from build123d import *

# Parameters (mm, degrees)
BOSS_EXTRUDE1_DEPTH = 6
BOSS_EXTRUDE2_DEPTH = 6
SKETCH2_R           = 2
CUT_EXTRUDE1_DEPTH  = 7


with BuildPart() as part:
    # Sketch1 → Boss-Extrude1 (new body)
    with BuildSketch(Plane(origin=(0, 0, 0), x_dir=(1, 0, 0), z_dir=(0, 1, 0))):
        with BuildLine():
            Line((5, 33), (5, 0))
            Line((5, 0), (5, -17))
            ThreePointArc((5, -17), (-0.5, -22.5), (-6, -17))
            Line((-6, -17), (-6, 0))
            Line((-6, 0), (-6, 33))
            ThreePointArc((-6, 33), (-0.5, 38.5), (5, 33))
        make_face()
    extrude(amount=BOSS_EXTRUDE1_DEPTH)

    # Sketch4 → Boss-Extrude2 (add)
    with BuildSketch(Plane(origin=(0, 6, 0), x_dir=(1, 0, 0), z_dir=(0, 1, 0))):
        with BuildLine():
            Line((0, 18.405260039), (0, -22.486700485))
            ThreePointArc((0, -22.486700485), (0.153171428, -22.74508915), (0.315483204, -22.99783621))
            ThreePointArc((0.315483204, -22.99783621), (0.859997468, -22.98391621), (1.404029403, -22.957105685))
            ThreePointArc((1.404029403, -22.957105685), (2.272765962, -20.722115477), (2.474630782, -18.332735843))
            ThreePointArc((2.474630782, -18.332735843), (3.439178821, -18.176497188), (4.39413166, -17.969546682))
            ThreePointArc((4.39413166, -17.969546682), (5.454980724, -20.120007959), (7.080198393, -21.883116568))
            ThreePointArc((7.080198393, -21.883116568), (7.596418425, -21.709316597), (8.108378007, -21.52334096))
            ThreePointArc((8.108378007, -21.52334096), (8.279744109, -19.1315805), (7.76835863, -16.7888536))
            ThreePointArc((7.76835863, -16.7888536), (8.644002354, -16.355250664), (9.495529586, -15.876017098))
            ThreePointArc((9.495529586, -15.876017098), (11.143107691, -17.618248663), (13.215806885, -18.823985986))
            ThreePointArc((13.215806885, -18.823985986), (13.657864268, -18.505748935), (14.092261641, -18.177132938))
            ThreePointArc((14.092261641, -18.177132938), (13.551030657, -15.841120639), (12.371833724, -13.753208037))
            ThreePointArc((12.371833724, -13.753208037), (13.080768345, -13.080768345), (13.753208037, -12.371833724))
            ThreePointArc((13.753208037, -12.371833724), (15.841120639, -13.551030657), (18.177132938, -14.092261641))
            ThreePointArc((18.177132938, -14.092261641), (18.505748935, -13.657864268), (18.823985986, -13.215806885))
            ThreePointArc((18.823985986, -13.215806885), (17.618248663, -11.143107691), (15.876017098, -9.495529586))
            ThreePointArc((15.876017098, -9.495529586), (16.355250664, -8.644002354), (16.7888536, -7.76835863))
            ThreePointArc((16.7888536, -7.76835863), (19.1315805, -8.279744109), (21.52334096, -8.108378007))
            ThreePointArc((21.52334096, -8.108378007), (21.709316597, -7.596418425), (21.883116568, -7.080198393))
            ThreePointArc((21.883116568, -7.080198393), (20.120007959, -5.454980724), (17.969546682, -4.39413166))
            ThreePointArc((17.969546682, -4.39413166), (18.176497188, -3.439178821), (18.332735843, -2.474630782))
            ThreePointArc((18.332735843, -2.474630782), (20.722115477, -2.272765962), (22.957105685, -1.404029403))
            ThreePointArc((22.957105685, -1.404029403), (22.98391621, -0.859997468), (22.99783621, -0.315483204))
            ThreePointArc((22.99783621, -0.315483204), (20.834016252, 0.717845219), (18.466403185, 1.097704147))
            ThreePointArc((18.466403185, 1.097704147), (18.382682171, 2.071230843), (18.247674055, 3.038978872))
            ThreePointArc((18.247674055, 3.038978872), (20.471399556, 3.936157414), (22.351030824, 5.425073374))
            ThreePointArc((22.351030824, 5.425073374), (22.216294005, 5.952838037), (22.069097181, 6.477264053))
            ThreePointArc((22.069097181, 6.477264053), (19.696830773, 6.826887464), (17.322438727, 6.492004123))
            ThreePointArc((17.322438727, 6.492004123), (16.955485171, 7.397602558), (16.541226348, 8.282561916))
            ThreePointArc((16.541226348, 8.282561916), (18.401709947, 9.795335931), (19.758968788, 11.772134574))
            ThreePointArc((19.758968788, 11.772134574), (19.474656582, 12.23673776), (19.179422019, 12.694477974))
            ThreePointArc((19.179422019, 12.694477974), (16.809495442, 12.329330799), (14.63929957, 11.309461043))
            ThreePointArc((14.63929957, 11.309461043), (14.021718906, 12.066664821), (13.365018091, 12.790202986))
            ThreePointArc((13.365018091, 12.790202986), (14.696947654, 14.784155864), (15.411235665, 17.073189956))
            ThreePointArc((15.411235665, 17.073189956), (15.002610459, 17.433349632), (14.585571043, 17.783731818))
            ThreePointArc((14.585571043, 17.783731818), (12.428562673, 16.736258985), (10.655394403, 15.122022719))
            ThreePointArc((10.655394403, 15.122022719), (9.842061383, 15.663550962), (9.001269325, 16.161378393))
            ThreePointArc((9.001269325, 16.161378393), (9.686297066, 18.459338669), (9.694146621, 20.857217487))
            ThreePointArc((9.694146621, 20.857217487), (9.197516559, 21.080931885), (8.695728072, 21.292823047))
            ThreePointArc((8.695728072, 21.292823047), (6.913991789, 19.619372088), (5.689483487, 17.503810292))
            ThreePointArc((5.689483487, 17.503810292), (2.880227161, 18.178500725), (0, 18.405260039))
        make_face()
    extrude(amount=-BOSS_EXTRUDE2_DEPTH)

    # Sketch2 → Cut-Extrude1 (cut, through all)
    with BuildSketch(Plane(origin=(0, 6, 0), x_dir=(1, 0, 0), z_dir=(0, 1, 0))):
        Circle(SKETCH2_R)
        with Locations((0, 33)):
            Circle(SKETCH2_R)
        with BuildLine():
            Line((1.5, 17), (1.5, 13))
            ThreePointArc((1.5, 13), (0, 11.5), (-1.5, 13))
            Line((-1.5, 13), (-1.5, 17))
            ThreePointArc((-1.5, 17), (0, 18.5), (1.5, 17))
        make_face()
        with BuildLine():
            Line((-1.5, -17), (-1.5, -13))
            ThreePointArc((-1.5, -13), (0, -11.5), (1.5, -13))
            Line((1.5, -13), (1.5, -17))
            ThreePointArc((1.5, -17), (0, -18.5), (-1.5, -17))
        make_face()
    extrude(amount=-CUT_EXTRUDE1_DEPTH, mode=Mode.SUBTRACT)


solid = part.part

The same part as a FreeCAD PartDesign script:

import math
import FreeCAD as App
import Part
import Sketcher

doc = App.newDocument("Part")
body = doc.addObject("PartDesign::Body", "Body")

# Sketch on XZ plane
sketch1 = body.newObject("Sketcher::SketchObject", "Sketch")
sketch1.AttachmentSupport = (doc.getObject("XZ_Plane"), [""])
sketch1.MapMode = "FlatFace"
sketch1.addGeometry([
    Part.LineSegment(App.Vector(5, 17, 0), App.Vector(5, -33, 0)),
    Part.ArcOfCircle(Part.Circle(App.Vector(0, -33, 0), App.Vector(0, 0, 1), 6), math.radians(180), math.radians(360)),
    Part.LineSegment(App.Vector(-6, -33, 0), App.Vector(-6, 17, 0)),
    Part.ArcOfCircle(Part.Circle(App.Vector(0, 17, 0), App.Vector(0, 0, 1), 6), math.radians(0), math.radians(180)),
], False)
sketch1.addConstraint([
    Sketcher.Constraint("Tangent", 0, 2, 1, 2),
    Sketcher.Constraint("Tangent", 1, 1, 2, 1),
    Sketcher.Constraint("Tangent", 2, 2, 3, 2),
    Sketcher.Constraint("Tangent", 3, 1, 0, 1),
    Sketcher.Constraint("Vertical", 0),
    Sketcher.Constraint("Vertical", 2),
    Sketcher.Constraint("Radius", 1, 5.5),
    Sketcher.Constraint("DistanceY", 0, 2, 0, 1, 50.0),
    Sketcher.Constraint("DistanceY", 1, 3, -1, 1, 33.0),
    Sketcher.Constraint("DistanceX", -1, 1, 0, 2, 5.0),
])
pad1 = body.newObject("PartDesign::Pad", "Pad")
pad1.Profile = sketch1
pad1.Length = 6
pad1.Reversed = True

# Sketch on XZ plane
sketch2 = body.newObject("Sketcher::SketchObject", "Sketch001")
sketch2.AttachmentSupport = (doc.getObject("XZ_Plane"), [""])
sketch2.MapMode = "FlatFace"
sketch2.AttachmentOffset = App.Placement(App.Vector(0, 0, -6), App.Rotation())
sketch2.addGeometry([
    Part.LineSegment(App.Vector(0, -18.4, 0), App.Vector(0, 22.5, 0)),  # 0
    Part.ArcOfCircle(Part.Circle(App.Vector(7.3, 18.3, 0), App.Vector(0, 0, 1), 8.4), math.radians(146.27), math.radians(150.37)),  # 1
    Part.ArcOfCircle(Part.Circle(App.Vector(0, 0, 0), App.Vector(0, 0, 1), 23), math.radians(86.5), math.radians(89.21)),  # 2
    Part.ArcOfCircle(Part.Circle(App.Vector(-5.9, 18.8, 0), App.Vector(0, 0, 1), 8.4), math.radians(-3), math.radians(29)),  # 3
    Part.ArcOfCircle(Part.Circle(App.Vector(0, 0, 0), App.Vector(0, 0, 1), 18.5), math.radians(76.26), math.radians(82.31)),  # 4
    Part.ArcOfCircle(Part.Circle(App.Vector(12.4, 15.4, 0), App.Vector(0, 0, 1), 8.4), math.radians(129), math.radians(162)),  # 5
    Part.ArcOfCircle(Part.Circle(App.Vector(0, 0, 0), App.Vector(0, 0, 1), 23), math.radians(69.36), math.radians(72.07)),  # 6
    Part.ArcOfCircle(Part.Circle(App.Vector(-0.1, 19.7, 0), App.Vector(0, 0, 1), 8.4), math.radians(-21), math.radians(12)),  # 7
    Part.ArcOfCircle(Part.Circle(App.Vector(0, 0, 0), App.Vector(0, 0, 1), 18.5), math.radians(59.12), math.radians(65.17)),  # 8
    Part.ArcOfCircle(Part.Circle(App.Vector(16.4, 11, 0), App.Vector(0, 0, 1), 8.4), math.radians(112), math.radians(145)),  # 9
    Part.ArcOfCircle(Part.Circle(App.Vector(0, 0, 0), App.Vector(0, 0, 1), 23), math.radians(52.21), math.radians(54.93)),  # 10
    Part.ArcOfCircle(Part.Circle(App.Vector(5.7, 18.9, 0), App.Vector(0, 0, 1), 8.4), math.radians(-38), math.radians(-5)),  # 11
    Part.ArcOfCircle(Part.Circle(App.Vector(0, 0, 0), App.Vector(0, 0, 1), 18.5), math.radians(41.97), math.radians(48.03)),  # 12
    Part.ArcOfCircle(Part.Circle(App.Vector(18.9, 5.7, 0), App.Vector(0, 0, 1), 8.4), math.radians(95), math.radians(128)),  # 13
    Part.ArcOfCircle(Part.Circle(App.Vector(0, 0, 0), App.Vector(0, 0, 1), 23), math.radians(35.07), math.radians(37.79)),  # 14
    Part.ArcOfCircle(Part.Circle(App.Vector(11, 16.4, 0), App.Vector(0, 0, 1), 8.4), math.radians(-55), math.radians(-22)),  # 15
    Part.ArcOfCircle(Part.Circle(App.Vector(0, 0, 0), App.Vector(0, 0, 1), 18.5), math.radians(24.83), math.radians(30.88)),  # 16
    Part.ArcOfCircle(Part.Circle(App.Vector(19.7, -0.1, 0), App.Vector(0, 0, 1), 8.4), math.radians(78), math.radians(111)),  # 17
    Part.ArcOfCircle(Part.Circle(App.Vector(0, 0, 0), App.Vector(0, 0, 1), 23), math.radians(17.93), math.radians(20.64)),  # 18
    Part.ArcOfCircle(Part.Circle(App.Vector(15.4, 12.4, 0), App.Vector(0, 0, 1), 8.4), math.radians(-72), math.radians(-39)),  # 19
    Part.ArcOfCircle(Part.Circle(App.Vector(0, 0, 0), App.Vector(0, 0, 1), 18.5), math.radians(7.69), math.radians(13.74)),  # 20
    Part.ArcOfCircle(Part.Circle(App.Vector(18.8, -5.9, 0), App.Vector(0, 0, 1), 8.4), math.radians(61), math.radians(93)),  # 21
    Part.ArcOfCircle(Part.Circle(App.Vector(0, 0, 0), App.Vector(0, 0, 1), 23), math.radians(0.79), math.radians(3.5)),  # 22
    Part.ArcOfCircle(Part.Circle(App.Vector(18.3, 7.3, 0), App.Vector(0, 0, 1), 8.4), math.radians(-89), math.radians(-56)),  # 23
    Part.ArcOfCircle(Part.Circle(App.Vector(0, 0, 0), App.Vector(0, 0, 1), 18.5), math.radians(-9.46), math.radians(-3.4)),  # 24
    Part.ArcOfCircle(Part.Circle(App.Vector(16.2, -11.2, 0), App.Vector(0, 0, 1), 8.4), math.radians(43), math.radians(76)),  # 25
    Part.ArcOfCircle(Part.Circle(App.Vector(0, 0, 0), App.Vector(0, 0, 1), 23), math.radians(-16.36), math.radians(-13.64)),  # 26
    Part.ArcOfCircle(Part.Circle(App.Vector(19.7, 1.6, 0), App.Vector(0, 0, 1), 8.4), math.radians(-106), math.radians(-73)),  # 27
    Part.ArcOfCircle(Part.Circle(App.Vector(0, 0, 0), App.Vector(0, 0, 1), 18.5), math.radians(-26.6), math.radians(-20.54)),  # 28
    Part.ArcOfCircle(Part.Circle(App.Vector(12.2, -15.5, 0), App.Vector(0, 0, 1), 8.4), math.radians(26), math.radians(59)),  # 29
    Part.ArcOfCircle(Part.Circle(App.Vector(0, 0, 0), App.Vector(0, 0, 1), 23), math.radians(-33.5), math.radians(-30.79)),  # 30
    Part.ArcOfCircle(Part.Circle(App.Vector(19.3, -4.3, 0), App.Vector(0, 0, 1), 8.4), math.radians(-123), math.radians(-91)),  # 31
    Part.ArcOfCircle(Part.Circle(App.Vector(0, 0, 0), App.Vector(0, 0, 1), 18.5), math.radians(-43.74), math.radians(-37.69)),  # 32
    Part.ArcOfCircle(Part.Circle(App.Vector(7.1, -18.4, 0), App.Vector(0, 0, 1), 8.4), math.radians(9), math.radians(42)),  # 33
    Part.ArcOfCircle(Part.Circle(App.Vector(0, 0, 0), App.Vector(0, 0, 1), 23), math.radians(-50.64), math.radians(-47.93)),  # 34
    Part.ArcOfCircle(Part.Circle(App.Vector(17.1, -9.8, 0), App.Vector(0, 0, 1), 8.4), math.radians(-141), math.radians(-108)),  # 35
    Part.ArcOfCircle(Part.Circle(App.Vector(0, 0, 0), App.Vector(0, 0, 1), 18.5), math.radians(-60.88), math.radians(-54.83)),  # 36
    Part.ArcOfCircle(Part.Circle(App.Vector(1.4, -19.7, 0), App.Vector(0, 0, 1), 8.4), math.radians(-8), math.radians(25)),  # 37
    Part.ArcOfCircle(Part.Circle(App.Vector(0, 0, 0), App.Vector(0, 0, 1), 23), math.radians(-67.79), math.radians(-65.07)),  # 38
    Part.ArcOfCircle(Part.Circle(App.Vector(13.5, -14.4, 0), App.Vector(0, 0, 1), 8.4), math.radians(-158), math.radians(-125)),  # 39
    Part.ArcOfCircle(Part.Circle(App.Vector(0, 0, 0), App.Vector(0, 0, 1), 18.4), math.radians(-90), math.radians(-71.99)),  # 40
], False)
sketch2.addConstraint([
    Sketcher.Constraint("Coincident", 0, 2, 1, 2),
    Sketcher.Constraint("Coincident", 1, 1, 2, 2),
    Sketcher.Constraint("Coincident", 2, 1, 3, 2),
    Sketcher.Constraint("Coincident", 3, 1, 4, 2),
    Sketcher.Constraint("Coincident", 4, 1, 5, 2),
    Sketcher.Constraint("Coincident", 5, 1, 6, 2),
    Sketcher.Constraint("Coincident", 6, 1, 7, 2),
    Sketcher.Constraint("Coincident", 7, 1, 8, 2),
    Sketcher.Constraint("Coincident", 8, 1, 9, 2),
    Sketcher.Constraint("Coincident", 9, 1, 10, 2),
    Sketcher.Constraint("Coincident", 10, 1, 11, 2),
    Sketcher.Constraint("Coincident", 11, 1, 12, 2),
    Sketcher.Constraint("Coincident", 12, 1, 13, 2),
    Sketcher.Constraint("Coincident", 13, 1, 14, 2),
    Sketcher.Constraint("Coincident", 14, 1, 15, 2),
    Sketcher.Constraint("Coincident", 15, 1, 16, 2),
    Sketcher.Constraint("Coincident", 16, 1, 17, 2),
    Sketcher.Constraint("Coincident", 17, 1, 18, 2),
    Sketcher.Constraint("Coincident", 18, 1, 19, 2),
    Sketcher.Constraint("Coincident", 19, 1, 20, 2),
    Sketcher.Constraint("Coincident", 20, 1, 21, 2),
    Sketcher.Constraint("Coincident", 21, 1, 22, 2),
    Sketcher.Constraint("Coincident", 22, 1, 23, 2),
    Sketcher.Constraint("Coincident", 23, 1, 24, 2),
    Sketcher.Constraint("Coincident", 24, 1, 25, 2),
    Sketcher.Constraint("Coincident", 25, 1, 26, 2),
    Sketcher.Constraint("Coincident", 26, 1, 27, 2),
    Sketcher.Constraint("Coincident", 27, 1, 28, 2),
    Sketcher.Constraint("Coincident", 28, 1, 29, 2),
    Sketcher.Constraint("Coincident", 29, 1, 30, 2),
    Sketcher.Constraint("Coincident", 30, 1, 31, 2),
    Sketcher.Constraint("Coincident", 31, 1, 32, 2),
    Sketcher.Constraint("Coincident", 32, 1, 33, 2),
    Sketcher.Constraint("Coincident", 33, 1, 34, 2),
    Sketcher.Constraint("Coincident", 34, 1, 35, 2),
    Sketcher.Constraint("Coincident", 35, 1, 36, 2),
    Sketcher.Constraint("Coincident", 36, 1, 37, 2),
    Sketcher.Constraint("Coincident", 37, 1, 38, 2),
    Sketcher.Constraint("Coincident", 38, 1, 39, 2),
    Sketcher.Constraint("Coincident", 39, 1, 40, 2),
    Sketcher.Constraint("Coincident", 40, 1, 0, 1),
    Sketcher.Constraint("Vertical", 0),
    Sketcher.Constraint("Coincident", 2, 3, -1, 1),
    Sketcher.Constraint("Coincident", 4, 3, -1, 1),
    Sketcher.Constraint("Coincident", 6, 3, -1, 1),
    Sketcher.Constraint("Coincident", 8, 3, -1, 1),
    Sketcher.Constraint("Coincident", 10, 3, -1, 1),
    Sketcher.Constraint("Coincident", 12, 3, -1, 1),
    Sketcher.Constraint("Coincident", 14, 3, -1, 1),
    Sketcher.Constraint("Coincident", 16, 3, -1, 1),
    Sketcher.Constraint("Coincident", 18, 3, -1, 1),
    Sketcher.Constraint("Coincident", 20, 3, -1, 1),
    Sketcher.Constraint("Coincident", 22, 3, -1, 1),
    Sketcher.Constraint("Coincident", 24, 3, -1, 1),
    Sketcher.Constraint("Coincident", 26, 3, -1, 1),
    Sketcher.Constraint("Coincident", 28, 3, -1, 1),
    Sketcher.Constraint("Coincident", 30, 3, -1, 1),
    Sketcher.Constraint("Coincident", 32, 3, -1, 1),
    Sketcher.Constraint("Coincident", 34, 3, -1, 1),
    Sketcher.Constraint("Coincident", 36, 3, -1, 1),
    Sketcher.Constraint("Coincident", 38, 3, -1, 1),
    Sketcher.Constraint("Coincident", 40, 3, -1, 1),
    Sketcher.Constraint("Equal", 1, 3),
    Sketcher.Constraint("Equal", 3, 5),
    Sketcher.Constraint("Equal", 2, 6),
    Sketcher.Constraint("Equal", 5, 7),
    Sketcher.Constraint("Equal", 4, 8),
    Sketcher.Constraint("Equal", 7, 9),
    Sketcher.Constraint("Equal", 6, 10),
    Sketcher.Constraint("Equal", 9, 11),
    Sketcher.Constraint("Equal", 8, 12),
    Sketcher.Constraint("Equal", 11, 13),
    Sketcher.Constraint("Equal", 10, 14),
    Sketcher.Constraint("Equal", 13, 15),
    Sketcher.Constraint("Equal", 12, 16),
    Sketcher.Constraint("Equal", 15, 17),
    Sketcher.Constraint("Equal", 14, 18),
    Sketcher.Constraint("Equal", 17, 19),
    Sketcher.Constraint("Equal", 16, 20),
    Sketcher.Constraint("Equal", 19, 21),
    Sketcher.Constraint("Equal", 18, 22),
    Sketcher.Constraint("Equal", 21, 23),
    Sketcher.Constraint("Equal", 20, 24),
    Sketcher.Constraint("Equal", 23, 25),
    Sketcher.Constraint("Equal", 22, 26),
    Sketcher.Constraint("Equal", 25, 27),
    Sketcher.Constraint("Equal", 24, 28),
    Sketcher.Constraint("Equal", 27, 29),
    Sketcher.Constraint("Equal", 26, 30),
    Sketcher.Constraint("Equal", 29, 31),
    Sketcher.Constraint("Equal", 28, 32),
    Sketcher.Constraint("Equal", 31, 33),
    Sketcher.Constraint("Equal", 30, 34),
    Sketcher.Constraint("Equal", 33, 35),
    Sketcher.Constraint("Equal", 32, 36),
    Sketcher.Constraint("Equal", 35, 37),
    Sketcher.Constraint("Equal", 34, 38),
    Sketcher.Constraint("Equal", 37, 39),
    Sketcher.Constraint("PointOnObject", 0, 2, -2),
    Sketcher.Constraint("Horizontal", 33, 3, 40, 1),
    Sketcher.Constraint("Radius", 2, 23.0),
    Sketcher.Constraint("Radius", 1, 8.4),
    Sketcher.Constraint("Radius", 4, 18.499),
    Sketcher.Constraint("Radius", 40, 18.40526),
    Sketcher.Constraint("DistanceY", 0, 1, 0, 2, 40.891961),
    Sketcher.Constraint("DistanceY", -1, 1, 7, 3, 19.733298),
    Sketcher.Constraint("DistanceX", -1, 1, 11, 3, 5.722199),
    Sketcher.Constraint("DistanceY", -1, 1, 13, 3, 5.722199),
    Sketcher.Constraint("DistanceX", -1, 1, 17, 3, 19.733298),
    Sketcher.Constraint("DistanceX", -1, 1, 31, 3, 19.260501),
    Sketcher.Constraint("DistanceX", -1, 1, 5, 1, 7.080198),
    Sketcher.Constraint("DistanceY", -1, 1, 18, 1, 7.080198),
    Sketcher.Constraint("DistanceX", -1, 1, 31, 1, 14.6393),
    Sketcher.Constraint("DistanceX", -1, 1, 1, 3, 7.301239),
    Sketcher.Constraint("DistanceX", -1, 1, 5, 3, 12.380659),
    Sketcher.Constraint("DistanceY", -1, 1, 11, 3, 18.885689),
    Sketcher.Constraint("DistanceX", -1, 1, 13, 3, 18.885689),
    Sketcher.Constraint("DistanceX", -1, 1, 19, 3, 15.36659),
    Sketcher.Constraint("DistanceX", -1, 1, 23, 3, 18.333159),
    Sketcher.Constraint("DistanceY", -1, 1, 23, 3, 7.301239),
    Sketcher.Constraint("DistanceX", -1, 1, 25, 3, 16.24883),
    Sketcher.Constraint("DistanceX", -1, 1, 29, 3, 12.226362),
    Sketcher.Constraint("DistanceX", -1, 1, 37, 3, 1.37627),
    Sketcher.Constraint("DistanceX", -1, 1, 2, 1, 1.404029),
    Sketcher.Constraint("DistanceX", -1, 1, 3, 1, 2.474631),
    Sketcher.Constraint("DistanceX", -1, 1, 6, 1, 8.108378),
    Sketcher.Constraint("DistanceX", -1, 1, 8, 1, 9.49553),
    Sketcher.Constraint("DistanceY", -1, 1, 15, 1, 9.49553),
    Sketcher.Constraint("DistanceY", -1, 1, 16, 1, 7.768359),
    Sketcher.Constraint("DistanceY", -1, 1, 20, 1, 2.474631),
    Sketcher.Constraint("DistanceY", -1, 1, 21, 1, 1.404029),
    Sketcher.Constraint("DistanceY", 24, 1, -1, 1, 3.038979),
    Sketcher.Constraint("DistanceX", -1, 1, 27, 1, 17.322439),
    Sketcher.Constraint("DistanceY", 28, 1, -1, 1, 8.282562),
    Sketcher.Constraint("DistanceX", -1, 1, 32, 1, 13.365018),
    Sketcher.Constraint("DistanceX", -1, 1, 34, 1, 14.585571),
    Sketcher.Constraint("DistanceX", -1, 1, 36, 1, 9.001269),
    Sketcher.Constraint("DistanceX", -1, 1, 38, 1, 8.695728),
    Sketcher.Constraint("DistanceY", 39, 1, -1, 1, 17.50381),
    Sketcher.Constraint("DistanceX", -1, 1, 9, 3, 16.360003),
    Sketcher.Constraint("DistanceX", -1, 1, 15, 3, 11.034632),
    Sketcher.Constraint("DistanceX", -1, 1, 27, 3, 19.670746),
    Sketcher.Constraint("DistanceX", -1, 1, 35, 3, 17.138876),
])
pad2 = body.newObject("PartDesign::Pad", "Pad001")
pad2.Profile = sketch2
pad2.Length = 6

# Sketch on XZ plane
sketch3 = body.newObject("Sketcher::SketchObject", "Sketch002")
sketch3.AttachmentSupport = (doc.getObject("XZ_Plane"), [""])
sketch3.MapMode = "FlatFace"
sketch3.AttachmentOffset = App.Placement(App.Vector(0, 0, -6), App.Rotation())
sketch3.addGeometry([
    Part.Circle(App.Vector(0, 0, 0), App.Vector(0, 0, 1), 2),  # 0
    Part.Circle(App.Vector(0, -33, 0), App.Vector(0, 0, 1), 2),  # 1
    Part.LineSegment(App.Vector(1.5, -13, 0), App.Vector(1.5, -17, 0)),  # 2
    Part.ArcOfCircle(Part.Circle(App.Vector(0, -17, 0), App.Vector(0, 0, 1), 1.5), math.radians(180), math.radians(360)),  # 3
    Part.LineSegment(App.Vector(-1.5, -17, 0), App.Vector(-1.5, -13, 0)),  # 4
    Part.ArcOfCircle(Part.Circle(App.Vector(0, -13, 0), App.Vector(0, 0, 1), 1.5), math.radians(0), math.radians(180)),  # 5
    Part.LineSegment(App.Vector(-1.5, 13, 0), App.Vector(-1.5, 17, 0)),  # 6
    Part.ArcOfCircle(Part.Circle(App.Vector(0, 17, 0), App.Vector(0, 0, 1), 1.5), math.radians(0), math.radians(180)),  # 7
    Part.LineSegment(App.Vector(1.5, 17, 0), App.Vector(1.5, 13, 0)),  # 8
    Part.ArcOfCircle(Part.Circle(App.Vector(0, 13, 0), App.Vector(0, 0, 1), 1.5), math.radians(180), math.radians(360)),  # 9
], False)
sketch3.addConstraint([
    Sketcher.Constraint("Tangent", 2, 2, 3, 2),
    Sketcher.Constraint("Tangent", 3, 1, 4, 1),
    Sketcher.Constraint("Tangent", 4, 2, 5, 2),
    Sketcher.Constraint("Tangent", 5, 1, 2, 1),
    Sketcher.Constraint("Tangent", 6, 2, 7, 2),
    Sketcher.Constraint("Tangent", 7, 1, 8, 1),
    Sketcher.Constraint("Tangent", 8, 2, 9, 2),
    Sketcher.Constraint("Tangent", 9, 1, 6, 1),
    Sketcher.Constraint("Vertical", 2),
    Sketcher.Constraint("Vertical", 4),
    Sketcher.Constraint("Vertical", 6),
    Sketcher.Constraint("Vertical", 8),
    Sketcher.Constraint("Coincident", 0, 3, -1, 1),
    Sketcher.Constraint("Equal", 0, 1),
    Sketcher.Constraint("Equal", 5, 7),
    Sketcher.Constraint("Symmetric", 3, 3, 7, 3, -1, 1),
    Sketcher.Constraint("Symmetric", 5, 3, 9, 3, -1),
    Sketcher.Constraint("PointOnObject", 1, 3, -2),
    Sketcher.Constraint("Diameter", 0, 4.0),
    Sketcher.Constraint("Radius", 3, 1.5),
    Sketcher.Constraint("DistanceY", 2, 2, 2, 1, 4.0),
    Sketcher.Constraint("DistanceY", 1, 3, -1, 1, 33.0),
    Sketcher.Constraint("DistanceY", 3, 3, -1, 1, 17.0),
])
pocket1 = body.newObject("PartDesign::Pocket", "Pocket")
pocket1.Profile = sketch3
pocket1.Type = "ThroughAll"
pocket1.Reversed = True

doc.recompute()
